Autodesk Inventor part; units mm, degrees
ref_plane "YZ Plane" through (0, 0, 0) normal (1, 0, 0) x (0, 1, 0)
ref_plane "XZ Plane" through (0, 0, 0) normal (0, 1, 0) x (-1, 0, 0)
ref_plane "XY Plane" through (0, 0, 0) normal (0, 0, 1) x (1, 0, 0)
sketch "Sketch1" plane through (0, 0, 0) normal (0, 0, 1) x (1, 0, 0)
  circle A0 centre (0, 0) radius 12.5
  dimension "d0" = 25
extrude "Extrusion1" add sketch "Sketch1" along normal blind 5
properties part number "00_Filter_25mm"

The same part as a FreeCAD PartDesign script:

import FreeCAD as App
import Part
import Sketcher

V = App.Vector

doc = App.newDocument("Part")
body = doc.addObject("PartDesign::Body", "Body")

# Sketch on XY plane
sketch1 = body.newObject("Sketcher::SketchObject", "Sketch")
sketch1.AttachmentSupport = (doc.getObject("XY_Plane"), [""])
sketch1.MapMode = "FlatFace"
sketch1.addGeometry(Part.Circle(V(0, 0, 0), V(0, 0, 1), 12.5), False)
sketch1.addConstraint([
    Sketcher.Constraint("Coincident", 0, 3, -1, 1),
    Sketcher.Constraint("Diameter", 0, 25.0),
])
pad1 = body.newObject("PartDesign::Pad", "Pad")
pad1.Profile = sketch1
pad1.Length = 5

doc.recompute()
